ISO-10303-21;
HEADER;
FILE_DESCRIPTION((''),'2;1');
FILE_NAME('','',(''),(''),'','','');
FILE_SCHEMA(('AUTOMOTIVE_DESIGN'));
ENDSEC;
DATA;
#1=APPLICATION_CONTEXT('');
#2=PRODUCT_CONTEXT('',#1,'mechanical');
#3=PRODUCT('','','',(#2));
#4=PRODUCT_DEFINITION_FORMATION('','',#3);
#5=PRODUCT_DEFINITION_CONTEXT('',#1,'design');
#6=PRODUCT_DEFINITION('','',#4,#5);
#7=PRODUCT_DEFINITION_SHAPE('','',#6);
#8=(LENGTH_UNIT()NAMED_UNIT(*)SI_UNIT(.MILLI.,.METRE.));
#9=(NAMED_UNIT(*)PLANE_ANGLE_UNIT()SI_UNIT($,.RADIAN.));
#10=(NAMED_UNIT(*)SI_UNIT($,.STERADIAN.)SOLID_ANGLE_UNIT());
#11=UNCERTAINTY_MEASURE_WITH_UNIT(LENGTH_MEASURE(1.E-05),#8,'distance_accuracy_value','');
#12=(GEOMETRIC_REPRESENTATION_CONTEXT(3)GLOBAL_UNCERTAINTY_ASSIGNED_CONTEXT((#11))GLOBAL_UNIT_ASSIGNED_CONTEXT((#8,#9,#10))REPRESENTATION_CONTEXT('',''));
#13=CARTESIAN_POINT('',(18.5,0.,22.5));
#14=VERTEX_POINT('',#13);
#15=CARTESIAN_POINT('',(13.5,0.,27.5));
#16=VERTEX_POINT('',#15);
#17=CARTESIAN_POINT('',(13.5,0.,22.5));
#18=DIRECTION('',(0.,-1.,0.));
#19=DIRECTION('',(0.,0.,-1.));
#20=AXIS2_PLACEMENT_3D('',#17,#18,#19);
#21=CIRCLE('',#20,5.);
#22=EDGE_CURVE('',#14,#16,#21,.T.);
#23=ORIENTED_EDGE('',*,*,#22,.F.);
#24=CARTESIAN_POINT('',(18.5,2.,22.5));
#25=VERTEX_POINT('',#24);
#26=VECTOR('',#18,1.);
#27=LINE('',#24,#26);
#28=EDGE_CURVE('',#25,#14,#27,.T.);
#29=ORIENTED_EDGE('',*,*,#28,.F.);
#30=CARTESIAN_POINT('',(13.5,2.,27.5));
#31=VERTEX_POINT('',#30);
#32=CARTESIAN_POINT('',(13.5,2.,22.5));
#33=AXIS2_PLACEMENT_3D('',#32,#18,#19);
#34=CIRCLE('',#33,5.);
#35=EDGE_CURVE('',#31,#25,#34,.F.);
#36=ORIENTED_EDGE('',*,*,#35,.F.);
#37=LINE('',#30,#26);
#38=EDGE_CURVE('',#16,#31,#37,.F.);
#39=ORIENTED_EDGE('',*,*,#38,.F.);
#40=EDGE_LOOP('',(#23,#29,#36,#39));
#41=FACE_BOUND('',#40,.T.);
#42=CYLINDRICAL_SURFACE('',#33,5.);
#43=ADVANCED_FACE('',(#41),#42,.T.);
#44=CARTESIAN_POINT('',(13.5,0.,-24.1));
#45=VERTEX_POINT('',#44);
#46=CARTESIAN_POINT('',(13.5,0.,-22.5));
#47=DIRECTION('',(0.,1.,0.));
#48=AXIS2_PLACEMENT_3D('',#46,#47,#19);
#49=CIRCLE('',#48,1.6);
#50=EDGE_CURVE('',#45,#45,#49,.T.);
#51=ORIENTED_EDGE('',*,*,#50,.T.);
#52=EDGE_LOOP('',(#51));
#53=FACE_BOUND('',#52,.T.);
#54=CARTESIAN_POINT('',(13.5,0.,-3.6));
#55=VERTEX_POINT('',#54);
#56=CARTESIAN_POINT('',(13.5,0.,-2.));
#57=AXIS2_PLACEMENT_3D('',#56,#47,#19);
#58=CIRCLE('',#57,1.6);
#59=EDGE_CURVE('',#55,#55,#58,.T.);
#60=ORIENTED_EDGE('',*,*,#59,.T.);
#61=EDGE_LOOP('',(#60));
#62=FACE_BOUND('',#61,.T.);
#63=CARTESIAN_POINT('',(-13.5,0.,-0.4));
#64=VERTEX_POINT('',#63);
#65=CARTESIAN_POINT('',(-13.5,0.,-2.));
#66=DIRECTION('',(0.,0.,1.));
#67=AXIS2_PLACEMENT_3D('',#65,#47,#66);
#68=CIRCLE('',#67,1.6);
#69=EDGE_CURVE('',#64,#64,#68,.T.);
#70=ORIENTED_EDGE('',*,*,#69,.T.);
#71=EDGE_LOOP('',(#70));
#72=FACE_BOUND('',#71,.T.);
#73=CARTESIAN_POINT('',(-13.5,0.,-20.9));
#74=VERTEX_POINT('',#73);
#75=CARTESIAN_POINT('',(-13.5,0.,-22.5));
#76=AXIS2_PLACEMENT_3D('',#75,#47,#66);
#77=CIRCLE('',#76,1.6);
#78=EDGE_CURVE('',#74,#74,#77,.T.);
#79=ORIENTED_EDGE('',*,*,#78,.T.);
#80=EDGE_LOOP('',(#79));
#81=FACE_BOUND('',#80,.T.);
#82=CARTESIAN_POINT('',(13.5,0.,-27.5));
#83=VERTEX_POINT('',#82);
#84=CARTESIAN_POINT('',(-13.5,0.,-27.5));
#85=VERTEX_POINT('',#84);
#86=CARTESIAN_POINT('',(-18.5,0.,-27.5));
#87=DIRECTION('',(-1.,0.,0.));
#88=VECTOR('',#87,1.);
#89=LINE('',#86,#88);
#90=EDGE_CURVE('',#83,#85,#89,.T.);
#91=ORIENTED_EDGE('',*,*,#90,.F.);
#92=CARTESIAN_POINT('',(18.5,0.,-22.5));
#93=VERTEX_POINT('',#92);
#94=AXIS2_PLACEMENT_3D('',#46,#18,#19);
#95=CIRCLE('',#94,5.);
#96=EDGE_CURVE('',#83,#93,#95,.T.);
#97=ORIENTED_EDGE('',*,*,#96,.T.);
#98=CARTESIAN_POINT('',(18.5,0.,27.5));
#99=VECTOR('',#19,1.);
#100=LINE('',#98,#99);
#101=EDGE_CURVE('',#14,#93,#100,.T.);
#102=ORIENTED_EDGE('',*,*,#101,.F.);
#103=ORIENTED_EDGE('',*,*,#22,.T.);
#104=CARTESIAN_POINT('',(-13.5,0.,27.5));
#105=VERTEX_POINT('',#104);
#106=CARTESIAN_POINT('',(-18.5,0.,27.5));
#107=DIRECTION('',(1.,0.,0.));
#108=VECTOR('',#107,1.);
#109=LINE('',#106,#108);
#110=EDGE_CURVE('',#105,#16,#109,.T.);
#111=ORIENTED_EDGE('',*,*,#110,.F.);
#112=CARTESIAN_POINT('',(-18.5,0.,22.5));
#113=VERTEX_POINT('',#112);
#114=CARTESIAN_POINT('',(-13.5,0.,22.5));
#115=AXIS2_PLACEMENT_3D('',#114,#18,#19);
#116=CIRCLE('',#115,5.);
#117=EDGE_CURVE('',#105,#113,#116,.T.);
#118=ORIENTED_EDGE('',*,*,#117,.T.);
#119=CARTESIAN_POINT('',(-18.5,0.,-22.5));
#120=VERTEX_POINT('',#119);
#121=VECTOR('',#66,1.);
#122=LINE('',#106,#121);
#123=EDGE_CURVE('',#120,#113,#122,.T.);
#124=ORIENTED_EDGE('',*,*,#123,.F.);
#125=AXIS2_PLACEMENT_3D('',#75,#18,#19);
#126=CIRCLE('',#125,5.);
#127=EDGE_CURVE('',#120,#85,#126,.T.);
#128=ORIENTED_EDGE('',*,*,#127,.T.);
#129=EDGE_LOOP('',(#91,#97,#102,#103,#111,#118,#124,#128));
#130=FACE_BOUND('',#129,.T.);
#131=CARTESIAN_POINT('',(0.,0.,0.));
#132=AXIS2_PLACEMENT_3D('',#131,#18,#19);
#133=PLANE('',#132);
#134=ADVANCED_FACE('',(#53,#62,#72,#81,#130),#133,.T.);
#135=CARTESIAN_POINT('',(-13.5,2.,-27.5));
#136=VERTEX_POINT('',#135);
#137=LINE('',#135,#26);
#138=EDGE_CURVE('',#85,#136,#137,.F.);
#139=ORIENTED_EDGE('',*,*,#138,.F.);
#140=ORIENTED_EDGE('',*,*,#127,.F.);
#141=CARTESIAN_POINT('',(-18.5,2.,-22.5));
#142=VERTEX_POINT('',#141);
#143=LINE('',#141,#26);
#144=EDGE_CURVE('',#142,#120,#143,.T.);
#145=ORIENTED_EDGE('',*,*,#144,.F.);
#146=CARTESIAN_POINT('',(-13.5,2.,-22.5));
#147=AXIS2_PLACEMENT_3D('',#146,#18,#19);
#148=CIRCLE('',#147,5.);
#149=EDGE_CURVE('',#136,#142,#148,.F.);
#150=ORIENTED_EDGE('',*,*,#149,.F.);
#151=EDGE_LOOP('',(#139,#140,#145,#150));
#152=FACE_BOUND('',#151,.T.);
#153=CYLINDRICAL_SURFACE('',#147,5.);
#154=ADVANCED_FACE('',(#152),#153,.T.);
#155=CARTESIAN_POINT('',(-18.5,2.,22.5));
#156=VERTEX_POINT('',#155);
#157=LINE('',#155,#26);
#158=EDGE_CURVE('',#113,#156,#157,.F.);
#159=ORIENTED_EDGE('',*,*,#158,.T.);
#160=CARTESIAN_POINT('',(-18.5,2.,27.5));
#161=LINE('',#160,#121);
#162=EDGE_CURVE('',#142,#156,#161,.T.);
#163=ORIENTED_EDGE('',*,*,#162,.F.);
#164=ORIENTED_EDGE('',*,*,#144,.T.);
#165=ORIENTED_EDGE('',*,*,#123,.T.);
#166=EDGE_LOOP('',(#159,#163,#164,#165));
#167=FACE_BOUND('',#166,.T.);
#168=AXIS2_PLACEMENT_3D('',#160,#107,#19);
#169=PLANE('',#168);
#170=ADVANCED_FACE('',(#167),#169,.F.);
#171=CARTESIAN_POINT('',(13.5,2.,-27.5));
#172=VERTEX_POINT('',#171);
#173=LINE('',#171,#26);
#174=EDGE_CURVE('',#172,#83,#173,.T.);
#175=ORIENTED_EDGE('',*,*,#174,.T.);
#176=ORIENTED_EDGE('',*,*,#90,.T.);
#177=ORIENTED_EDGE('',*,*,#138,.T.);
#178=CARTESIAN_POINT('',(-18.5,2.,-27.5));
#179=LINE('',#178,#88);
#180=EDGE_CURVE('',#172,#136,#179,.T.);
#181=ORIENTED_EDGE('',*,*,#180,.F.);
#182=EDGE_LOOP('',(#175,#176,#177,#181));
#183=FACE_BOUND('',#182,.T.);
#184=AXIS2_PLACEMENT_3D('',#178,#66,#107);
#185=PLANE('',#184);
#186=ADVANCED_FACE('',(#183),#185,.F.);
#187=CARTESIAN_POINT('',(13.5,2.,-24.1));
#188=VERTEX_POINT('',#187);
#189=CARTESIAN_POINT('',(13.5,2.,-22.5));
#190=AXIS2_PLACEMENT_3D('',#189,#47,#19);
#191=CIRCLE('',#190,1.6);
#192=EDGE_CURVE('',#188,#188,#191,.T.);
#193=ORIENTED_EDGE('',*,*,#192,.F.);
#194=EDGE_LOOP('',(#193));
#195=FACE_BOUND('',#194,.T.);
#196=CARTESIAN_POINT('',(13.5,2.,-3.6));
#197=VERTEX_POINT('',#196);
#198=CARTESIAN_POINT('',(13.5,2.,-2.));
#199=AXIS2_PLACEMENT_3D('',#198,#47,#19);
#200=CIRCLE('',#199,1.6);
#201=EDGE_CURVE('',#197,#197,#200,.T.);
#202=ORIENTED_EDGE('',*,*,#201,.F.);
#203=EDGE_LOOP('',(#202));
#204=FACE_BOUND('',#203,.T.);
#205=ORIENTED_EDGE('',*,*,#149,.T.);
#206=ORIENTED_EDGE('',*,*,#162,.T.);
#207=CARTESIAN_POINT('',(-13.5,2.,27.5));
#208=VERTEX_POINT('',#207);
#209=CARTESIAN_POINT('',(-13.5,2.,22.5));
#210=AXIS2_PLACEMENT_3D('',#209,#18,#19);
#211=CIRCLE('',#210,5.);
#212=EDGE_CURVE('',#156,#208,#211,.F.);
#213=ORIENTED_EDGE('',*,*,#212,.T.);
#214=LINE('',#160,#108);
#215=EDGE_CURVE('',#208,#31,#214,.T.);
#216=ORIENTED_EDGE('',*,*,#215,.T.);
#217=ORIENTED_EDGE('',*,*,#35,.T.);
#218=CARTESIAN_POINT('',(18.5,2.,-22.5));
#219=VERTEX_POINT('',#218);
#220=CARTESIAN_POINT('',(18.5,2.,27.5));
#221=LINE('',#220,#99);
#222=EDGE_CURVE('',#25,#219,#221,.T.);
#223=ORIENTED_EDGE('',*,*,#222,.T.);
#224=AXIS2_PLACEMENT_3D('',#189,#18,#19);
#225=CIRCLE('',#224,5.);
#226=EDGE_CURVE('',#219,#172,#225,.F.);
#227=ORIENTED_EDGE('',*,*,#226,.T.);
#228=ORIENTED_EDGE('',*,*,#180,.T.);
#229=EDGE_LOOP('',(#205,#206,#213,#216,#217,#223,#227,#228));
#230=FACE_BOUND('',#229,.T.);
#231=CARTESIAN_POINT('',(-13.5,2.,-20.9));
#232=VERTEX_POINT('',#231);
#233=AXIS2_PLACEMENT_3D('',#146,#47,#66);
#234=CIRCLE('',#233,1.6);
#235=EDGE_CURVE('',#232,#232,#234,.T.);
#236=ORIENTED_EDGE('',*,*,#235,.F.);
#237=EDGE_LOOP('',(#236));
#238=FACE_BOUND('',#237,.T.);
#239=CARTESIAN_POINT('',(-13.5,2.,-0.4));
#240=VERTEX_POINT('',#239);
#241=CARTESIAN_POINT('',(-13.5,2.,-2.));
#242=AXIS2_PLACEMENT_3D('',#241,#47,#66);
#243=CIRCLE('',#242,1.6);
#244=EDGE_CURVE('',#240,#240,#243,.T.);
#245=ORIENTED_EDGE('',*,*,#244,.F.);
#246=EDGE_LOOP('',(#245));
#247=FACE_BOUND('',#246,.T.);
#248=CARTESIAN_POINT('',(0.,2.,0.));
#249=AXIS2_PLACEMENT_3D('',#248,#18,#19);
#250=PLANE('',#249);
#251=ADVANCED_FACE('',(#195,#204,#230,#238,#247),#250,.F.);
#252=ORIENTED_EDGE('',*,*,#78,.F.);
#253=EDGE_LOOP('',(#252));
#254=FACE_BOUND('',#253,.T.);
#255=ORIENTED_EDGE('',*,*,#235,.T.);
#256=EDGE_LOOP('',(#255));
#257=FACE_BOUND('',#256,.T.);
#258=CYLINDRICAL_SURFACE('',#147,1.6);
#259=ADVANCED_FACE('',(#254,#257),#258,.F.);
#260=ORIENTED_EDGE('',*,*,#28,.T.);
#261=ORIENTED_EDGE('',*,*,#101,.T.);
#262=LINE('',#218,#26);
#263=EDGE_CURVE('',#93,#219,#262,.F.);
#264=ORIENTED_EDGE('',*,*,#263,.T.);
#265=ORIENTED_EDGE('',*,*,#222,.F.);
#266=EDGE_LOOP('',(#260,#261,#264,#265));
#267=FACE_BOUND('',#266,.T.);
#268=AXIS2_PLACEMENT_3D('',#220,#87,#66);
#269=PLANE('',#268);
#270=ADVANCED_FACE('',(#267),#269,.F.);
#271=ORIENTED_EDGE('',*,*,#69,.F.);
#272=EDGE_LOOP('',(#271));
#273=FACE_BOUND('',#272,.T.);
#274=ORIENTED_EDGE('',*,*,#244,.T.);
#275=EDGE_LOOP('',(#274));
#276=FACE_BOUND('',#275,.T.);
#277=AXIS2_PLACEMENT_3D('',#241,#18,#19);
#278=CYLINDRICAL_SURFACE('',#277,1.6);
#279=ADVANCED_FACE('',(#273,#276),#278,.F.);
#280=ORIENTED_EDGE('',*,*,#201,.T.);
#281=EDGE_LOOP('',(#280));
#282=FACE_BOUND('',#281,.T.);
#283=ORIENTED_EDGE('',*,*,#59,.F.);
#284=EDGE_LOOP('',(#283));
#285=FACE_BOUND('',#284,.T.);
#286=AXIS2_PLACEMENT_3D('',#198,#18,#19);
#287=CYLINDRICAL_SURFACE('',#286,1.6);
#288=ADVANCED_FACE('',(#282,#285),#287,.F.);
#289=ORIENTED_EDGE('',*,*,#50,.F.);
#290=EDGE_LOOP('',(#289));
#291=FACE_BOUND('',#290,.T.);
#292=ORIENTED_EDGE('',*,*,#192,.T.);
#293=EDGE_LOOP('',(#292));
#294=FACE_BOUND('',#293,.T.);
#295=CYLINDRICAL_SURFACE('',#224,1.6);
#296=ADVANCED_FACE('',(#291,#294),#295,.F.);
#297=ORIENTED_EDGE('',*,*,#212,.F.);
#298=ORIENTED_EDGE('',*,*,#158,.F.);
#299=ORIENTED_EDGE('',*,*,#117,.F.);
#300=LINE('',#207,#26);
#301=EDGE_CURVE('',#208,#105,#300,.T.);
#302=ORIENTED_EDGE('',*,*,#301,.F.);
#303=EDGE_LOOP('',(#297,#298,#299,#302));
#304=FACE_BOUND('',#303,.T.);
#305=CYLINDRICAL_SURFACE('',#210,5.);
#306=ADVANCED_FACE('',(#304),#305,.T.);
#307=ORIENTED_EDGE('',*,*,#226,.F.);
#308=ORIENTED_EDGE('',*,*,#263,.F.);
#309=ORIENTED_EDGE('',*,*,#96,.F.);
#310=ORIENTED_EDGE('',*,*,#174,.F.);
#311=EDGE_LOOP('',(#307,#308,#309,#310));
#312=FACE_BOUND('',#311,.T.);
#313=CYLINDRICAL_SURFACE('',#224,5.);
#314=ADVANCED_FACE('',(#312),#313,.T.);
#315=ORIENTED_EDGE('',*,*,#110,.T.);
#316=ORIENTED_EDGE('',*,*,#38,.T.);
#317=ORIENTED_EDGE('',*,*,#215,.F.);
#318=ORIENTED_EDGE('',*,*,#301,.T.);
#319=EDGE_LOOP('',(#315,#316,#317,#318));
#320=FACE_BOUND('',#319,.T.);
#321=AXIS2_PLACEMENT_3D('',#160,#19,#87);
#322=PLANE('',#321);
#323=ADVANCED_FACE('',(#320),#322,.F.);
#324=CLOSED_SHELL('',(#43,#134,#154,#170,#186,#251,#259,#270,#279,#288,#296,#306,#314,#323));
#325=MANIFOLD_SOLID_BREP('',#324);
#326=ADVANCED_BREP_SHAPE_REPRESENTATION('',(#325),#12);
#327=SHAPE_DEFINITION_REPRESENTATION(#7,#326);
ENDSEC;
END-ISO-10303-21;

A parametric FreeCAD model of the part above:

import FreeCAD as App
import Part
import Sketcher

V = App.Vector
Q = App.Units.Quantity


def edges_at(feature, points):
    """Names of the edges that pass closest to the given points."""
    edges = feature.Shape.Edges
    near = lambda p: min(range(len(edges)), key=lambda i: edges[i].distToShape(Part.Vertex(*p))[0])
    return sorted({f"Edge{near(p) + 1}" for p in points})


def add_polygon(sketch, points):
    """Adds a closed chain of lines whose ends are joined by coincident constraints."""
    first, n = sketch.GeometryCount, len(points)
    for a, b in zip(points, points[1:] + points[:1]):
        sketch.addGeometry(Part.LineSegment(App.Vector(*a, 0), App.Vector(*b, 0)), False)
    for i in range(n):
        sketch.addConstraint(Sketcher.Constraint("Coincident", first + i, 2, first + (i + 1) % n, 1))

doc = App.newDocument("Part")
body = doc.addObject("PartDesign::Body", "Body")

sketch1 = body.newObject("Sketcher::SketchObject", "Sketch")
sketch1.AttachmentSupport = (doc.getObject("XZ_Plane"), [""])
sketch1.MapMode = "FlatFace"
add_polygon(sketch1, [(-18.5, -27.5), (-18.5, 27.5), (18.5, 27.5), (18.5, -27.5)])
sketch1.addGeometry(Part.Circle(V(-13.5, -2, 0), V(0, 0, 1), 1.6), False)
sketch1.addGeometry(Part.Circle(V(13.5, -2, 0), V(0, 0, 1), 1.6), False)
sketch1.addGeometry(Part.Circle(V(-13.5, -22.5, 0), V(0, 0, 1), 1.6), False)
sketch1.addGeometry(Part.Circle(V(13.5, -22.5, 0), V(0, 0, 1), 1.6), False)
sketch1.addConstraint([
    Sketcher.Constraint("Vertical", 0),
    Sketcher.Constraint("Horizontal", 1),
    Sketcher.Constraint("Vertical", 2),
    Sketcher.Constraint("Horizontal", 3),
    Sketcher.Constraint("Equal", 4, 5),
    Sketcher.Constraint("Equal", 5, 6),
    Sketcher.Constraint("Equal", 6, 7),
    Sketcher.Constraint("Symmetric", 0, 2, 2, 2, -1, 1),
    Sketcher.Constraint("Symmetric", 4, 3, 5, 3, -2),
    Sketcher.Constraint("Symmetric", 6, 3, 7, 3, -2),
    Sketcher.Constraint("Vertical", 4, 3, 6, 3),
    Sketcher.Constraint("Diameter", 4, Q("3.2 mm")),
    Sketcher.Constraint("DistanceX", 1, 1, 1, 2, Q("37 mm")),
    Sketcher.Constraint("DistanceY", 0, 1, 0, 2, Q("55 mm")),
    Sketcher.Constraint("DistanceY", 4, 3, -1, 1, Q("2 mm")),
    Sketcher.Constraint("DistanceX", 4, 3, 5, 3, Q("27 mm")),
    Sketcher.Constraint("DistanceY", 6, 3, 0, 2, Q("50 mm")),
])
pad1 = body.newObject("PartDesign::Pad", "Pad")
pad1.Profile = sketch1
pad1.Length = 2
pad1.Reversed = True
doc.recompute()

fillet = body.newObject("PartDesign::Fillet", "Fillet")
fillet.Base = (pad1, edges_at(pad1, [
    (18.5, 1, 27.5),
    (-18.5, 1, 27.5),
    (-18.5, 1, -27.5),
    (18.5, 1, -27.5),
]))
fillet.Radius = 5

doc.recompute()
